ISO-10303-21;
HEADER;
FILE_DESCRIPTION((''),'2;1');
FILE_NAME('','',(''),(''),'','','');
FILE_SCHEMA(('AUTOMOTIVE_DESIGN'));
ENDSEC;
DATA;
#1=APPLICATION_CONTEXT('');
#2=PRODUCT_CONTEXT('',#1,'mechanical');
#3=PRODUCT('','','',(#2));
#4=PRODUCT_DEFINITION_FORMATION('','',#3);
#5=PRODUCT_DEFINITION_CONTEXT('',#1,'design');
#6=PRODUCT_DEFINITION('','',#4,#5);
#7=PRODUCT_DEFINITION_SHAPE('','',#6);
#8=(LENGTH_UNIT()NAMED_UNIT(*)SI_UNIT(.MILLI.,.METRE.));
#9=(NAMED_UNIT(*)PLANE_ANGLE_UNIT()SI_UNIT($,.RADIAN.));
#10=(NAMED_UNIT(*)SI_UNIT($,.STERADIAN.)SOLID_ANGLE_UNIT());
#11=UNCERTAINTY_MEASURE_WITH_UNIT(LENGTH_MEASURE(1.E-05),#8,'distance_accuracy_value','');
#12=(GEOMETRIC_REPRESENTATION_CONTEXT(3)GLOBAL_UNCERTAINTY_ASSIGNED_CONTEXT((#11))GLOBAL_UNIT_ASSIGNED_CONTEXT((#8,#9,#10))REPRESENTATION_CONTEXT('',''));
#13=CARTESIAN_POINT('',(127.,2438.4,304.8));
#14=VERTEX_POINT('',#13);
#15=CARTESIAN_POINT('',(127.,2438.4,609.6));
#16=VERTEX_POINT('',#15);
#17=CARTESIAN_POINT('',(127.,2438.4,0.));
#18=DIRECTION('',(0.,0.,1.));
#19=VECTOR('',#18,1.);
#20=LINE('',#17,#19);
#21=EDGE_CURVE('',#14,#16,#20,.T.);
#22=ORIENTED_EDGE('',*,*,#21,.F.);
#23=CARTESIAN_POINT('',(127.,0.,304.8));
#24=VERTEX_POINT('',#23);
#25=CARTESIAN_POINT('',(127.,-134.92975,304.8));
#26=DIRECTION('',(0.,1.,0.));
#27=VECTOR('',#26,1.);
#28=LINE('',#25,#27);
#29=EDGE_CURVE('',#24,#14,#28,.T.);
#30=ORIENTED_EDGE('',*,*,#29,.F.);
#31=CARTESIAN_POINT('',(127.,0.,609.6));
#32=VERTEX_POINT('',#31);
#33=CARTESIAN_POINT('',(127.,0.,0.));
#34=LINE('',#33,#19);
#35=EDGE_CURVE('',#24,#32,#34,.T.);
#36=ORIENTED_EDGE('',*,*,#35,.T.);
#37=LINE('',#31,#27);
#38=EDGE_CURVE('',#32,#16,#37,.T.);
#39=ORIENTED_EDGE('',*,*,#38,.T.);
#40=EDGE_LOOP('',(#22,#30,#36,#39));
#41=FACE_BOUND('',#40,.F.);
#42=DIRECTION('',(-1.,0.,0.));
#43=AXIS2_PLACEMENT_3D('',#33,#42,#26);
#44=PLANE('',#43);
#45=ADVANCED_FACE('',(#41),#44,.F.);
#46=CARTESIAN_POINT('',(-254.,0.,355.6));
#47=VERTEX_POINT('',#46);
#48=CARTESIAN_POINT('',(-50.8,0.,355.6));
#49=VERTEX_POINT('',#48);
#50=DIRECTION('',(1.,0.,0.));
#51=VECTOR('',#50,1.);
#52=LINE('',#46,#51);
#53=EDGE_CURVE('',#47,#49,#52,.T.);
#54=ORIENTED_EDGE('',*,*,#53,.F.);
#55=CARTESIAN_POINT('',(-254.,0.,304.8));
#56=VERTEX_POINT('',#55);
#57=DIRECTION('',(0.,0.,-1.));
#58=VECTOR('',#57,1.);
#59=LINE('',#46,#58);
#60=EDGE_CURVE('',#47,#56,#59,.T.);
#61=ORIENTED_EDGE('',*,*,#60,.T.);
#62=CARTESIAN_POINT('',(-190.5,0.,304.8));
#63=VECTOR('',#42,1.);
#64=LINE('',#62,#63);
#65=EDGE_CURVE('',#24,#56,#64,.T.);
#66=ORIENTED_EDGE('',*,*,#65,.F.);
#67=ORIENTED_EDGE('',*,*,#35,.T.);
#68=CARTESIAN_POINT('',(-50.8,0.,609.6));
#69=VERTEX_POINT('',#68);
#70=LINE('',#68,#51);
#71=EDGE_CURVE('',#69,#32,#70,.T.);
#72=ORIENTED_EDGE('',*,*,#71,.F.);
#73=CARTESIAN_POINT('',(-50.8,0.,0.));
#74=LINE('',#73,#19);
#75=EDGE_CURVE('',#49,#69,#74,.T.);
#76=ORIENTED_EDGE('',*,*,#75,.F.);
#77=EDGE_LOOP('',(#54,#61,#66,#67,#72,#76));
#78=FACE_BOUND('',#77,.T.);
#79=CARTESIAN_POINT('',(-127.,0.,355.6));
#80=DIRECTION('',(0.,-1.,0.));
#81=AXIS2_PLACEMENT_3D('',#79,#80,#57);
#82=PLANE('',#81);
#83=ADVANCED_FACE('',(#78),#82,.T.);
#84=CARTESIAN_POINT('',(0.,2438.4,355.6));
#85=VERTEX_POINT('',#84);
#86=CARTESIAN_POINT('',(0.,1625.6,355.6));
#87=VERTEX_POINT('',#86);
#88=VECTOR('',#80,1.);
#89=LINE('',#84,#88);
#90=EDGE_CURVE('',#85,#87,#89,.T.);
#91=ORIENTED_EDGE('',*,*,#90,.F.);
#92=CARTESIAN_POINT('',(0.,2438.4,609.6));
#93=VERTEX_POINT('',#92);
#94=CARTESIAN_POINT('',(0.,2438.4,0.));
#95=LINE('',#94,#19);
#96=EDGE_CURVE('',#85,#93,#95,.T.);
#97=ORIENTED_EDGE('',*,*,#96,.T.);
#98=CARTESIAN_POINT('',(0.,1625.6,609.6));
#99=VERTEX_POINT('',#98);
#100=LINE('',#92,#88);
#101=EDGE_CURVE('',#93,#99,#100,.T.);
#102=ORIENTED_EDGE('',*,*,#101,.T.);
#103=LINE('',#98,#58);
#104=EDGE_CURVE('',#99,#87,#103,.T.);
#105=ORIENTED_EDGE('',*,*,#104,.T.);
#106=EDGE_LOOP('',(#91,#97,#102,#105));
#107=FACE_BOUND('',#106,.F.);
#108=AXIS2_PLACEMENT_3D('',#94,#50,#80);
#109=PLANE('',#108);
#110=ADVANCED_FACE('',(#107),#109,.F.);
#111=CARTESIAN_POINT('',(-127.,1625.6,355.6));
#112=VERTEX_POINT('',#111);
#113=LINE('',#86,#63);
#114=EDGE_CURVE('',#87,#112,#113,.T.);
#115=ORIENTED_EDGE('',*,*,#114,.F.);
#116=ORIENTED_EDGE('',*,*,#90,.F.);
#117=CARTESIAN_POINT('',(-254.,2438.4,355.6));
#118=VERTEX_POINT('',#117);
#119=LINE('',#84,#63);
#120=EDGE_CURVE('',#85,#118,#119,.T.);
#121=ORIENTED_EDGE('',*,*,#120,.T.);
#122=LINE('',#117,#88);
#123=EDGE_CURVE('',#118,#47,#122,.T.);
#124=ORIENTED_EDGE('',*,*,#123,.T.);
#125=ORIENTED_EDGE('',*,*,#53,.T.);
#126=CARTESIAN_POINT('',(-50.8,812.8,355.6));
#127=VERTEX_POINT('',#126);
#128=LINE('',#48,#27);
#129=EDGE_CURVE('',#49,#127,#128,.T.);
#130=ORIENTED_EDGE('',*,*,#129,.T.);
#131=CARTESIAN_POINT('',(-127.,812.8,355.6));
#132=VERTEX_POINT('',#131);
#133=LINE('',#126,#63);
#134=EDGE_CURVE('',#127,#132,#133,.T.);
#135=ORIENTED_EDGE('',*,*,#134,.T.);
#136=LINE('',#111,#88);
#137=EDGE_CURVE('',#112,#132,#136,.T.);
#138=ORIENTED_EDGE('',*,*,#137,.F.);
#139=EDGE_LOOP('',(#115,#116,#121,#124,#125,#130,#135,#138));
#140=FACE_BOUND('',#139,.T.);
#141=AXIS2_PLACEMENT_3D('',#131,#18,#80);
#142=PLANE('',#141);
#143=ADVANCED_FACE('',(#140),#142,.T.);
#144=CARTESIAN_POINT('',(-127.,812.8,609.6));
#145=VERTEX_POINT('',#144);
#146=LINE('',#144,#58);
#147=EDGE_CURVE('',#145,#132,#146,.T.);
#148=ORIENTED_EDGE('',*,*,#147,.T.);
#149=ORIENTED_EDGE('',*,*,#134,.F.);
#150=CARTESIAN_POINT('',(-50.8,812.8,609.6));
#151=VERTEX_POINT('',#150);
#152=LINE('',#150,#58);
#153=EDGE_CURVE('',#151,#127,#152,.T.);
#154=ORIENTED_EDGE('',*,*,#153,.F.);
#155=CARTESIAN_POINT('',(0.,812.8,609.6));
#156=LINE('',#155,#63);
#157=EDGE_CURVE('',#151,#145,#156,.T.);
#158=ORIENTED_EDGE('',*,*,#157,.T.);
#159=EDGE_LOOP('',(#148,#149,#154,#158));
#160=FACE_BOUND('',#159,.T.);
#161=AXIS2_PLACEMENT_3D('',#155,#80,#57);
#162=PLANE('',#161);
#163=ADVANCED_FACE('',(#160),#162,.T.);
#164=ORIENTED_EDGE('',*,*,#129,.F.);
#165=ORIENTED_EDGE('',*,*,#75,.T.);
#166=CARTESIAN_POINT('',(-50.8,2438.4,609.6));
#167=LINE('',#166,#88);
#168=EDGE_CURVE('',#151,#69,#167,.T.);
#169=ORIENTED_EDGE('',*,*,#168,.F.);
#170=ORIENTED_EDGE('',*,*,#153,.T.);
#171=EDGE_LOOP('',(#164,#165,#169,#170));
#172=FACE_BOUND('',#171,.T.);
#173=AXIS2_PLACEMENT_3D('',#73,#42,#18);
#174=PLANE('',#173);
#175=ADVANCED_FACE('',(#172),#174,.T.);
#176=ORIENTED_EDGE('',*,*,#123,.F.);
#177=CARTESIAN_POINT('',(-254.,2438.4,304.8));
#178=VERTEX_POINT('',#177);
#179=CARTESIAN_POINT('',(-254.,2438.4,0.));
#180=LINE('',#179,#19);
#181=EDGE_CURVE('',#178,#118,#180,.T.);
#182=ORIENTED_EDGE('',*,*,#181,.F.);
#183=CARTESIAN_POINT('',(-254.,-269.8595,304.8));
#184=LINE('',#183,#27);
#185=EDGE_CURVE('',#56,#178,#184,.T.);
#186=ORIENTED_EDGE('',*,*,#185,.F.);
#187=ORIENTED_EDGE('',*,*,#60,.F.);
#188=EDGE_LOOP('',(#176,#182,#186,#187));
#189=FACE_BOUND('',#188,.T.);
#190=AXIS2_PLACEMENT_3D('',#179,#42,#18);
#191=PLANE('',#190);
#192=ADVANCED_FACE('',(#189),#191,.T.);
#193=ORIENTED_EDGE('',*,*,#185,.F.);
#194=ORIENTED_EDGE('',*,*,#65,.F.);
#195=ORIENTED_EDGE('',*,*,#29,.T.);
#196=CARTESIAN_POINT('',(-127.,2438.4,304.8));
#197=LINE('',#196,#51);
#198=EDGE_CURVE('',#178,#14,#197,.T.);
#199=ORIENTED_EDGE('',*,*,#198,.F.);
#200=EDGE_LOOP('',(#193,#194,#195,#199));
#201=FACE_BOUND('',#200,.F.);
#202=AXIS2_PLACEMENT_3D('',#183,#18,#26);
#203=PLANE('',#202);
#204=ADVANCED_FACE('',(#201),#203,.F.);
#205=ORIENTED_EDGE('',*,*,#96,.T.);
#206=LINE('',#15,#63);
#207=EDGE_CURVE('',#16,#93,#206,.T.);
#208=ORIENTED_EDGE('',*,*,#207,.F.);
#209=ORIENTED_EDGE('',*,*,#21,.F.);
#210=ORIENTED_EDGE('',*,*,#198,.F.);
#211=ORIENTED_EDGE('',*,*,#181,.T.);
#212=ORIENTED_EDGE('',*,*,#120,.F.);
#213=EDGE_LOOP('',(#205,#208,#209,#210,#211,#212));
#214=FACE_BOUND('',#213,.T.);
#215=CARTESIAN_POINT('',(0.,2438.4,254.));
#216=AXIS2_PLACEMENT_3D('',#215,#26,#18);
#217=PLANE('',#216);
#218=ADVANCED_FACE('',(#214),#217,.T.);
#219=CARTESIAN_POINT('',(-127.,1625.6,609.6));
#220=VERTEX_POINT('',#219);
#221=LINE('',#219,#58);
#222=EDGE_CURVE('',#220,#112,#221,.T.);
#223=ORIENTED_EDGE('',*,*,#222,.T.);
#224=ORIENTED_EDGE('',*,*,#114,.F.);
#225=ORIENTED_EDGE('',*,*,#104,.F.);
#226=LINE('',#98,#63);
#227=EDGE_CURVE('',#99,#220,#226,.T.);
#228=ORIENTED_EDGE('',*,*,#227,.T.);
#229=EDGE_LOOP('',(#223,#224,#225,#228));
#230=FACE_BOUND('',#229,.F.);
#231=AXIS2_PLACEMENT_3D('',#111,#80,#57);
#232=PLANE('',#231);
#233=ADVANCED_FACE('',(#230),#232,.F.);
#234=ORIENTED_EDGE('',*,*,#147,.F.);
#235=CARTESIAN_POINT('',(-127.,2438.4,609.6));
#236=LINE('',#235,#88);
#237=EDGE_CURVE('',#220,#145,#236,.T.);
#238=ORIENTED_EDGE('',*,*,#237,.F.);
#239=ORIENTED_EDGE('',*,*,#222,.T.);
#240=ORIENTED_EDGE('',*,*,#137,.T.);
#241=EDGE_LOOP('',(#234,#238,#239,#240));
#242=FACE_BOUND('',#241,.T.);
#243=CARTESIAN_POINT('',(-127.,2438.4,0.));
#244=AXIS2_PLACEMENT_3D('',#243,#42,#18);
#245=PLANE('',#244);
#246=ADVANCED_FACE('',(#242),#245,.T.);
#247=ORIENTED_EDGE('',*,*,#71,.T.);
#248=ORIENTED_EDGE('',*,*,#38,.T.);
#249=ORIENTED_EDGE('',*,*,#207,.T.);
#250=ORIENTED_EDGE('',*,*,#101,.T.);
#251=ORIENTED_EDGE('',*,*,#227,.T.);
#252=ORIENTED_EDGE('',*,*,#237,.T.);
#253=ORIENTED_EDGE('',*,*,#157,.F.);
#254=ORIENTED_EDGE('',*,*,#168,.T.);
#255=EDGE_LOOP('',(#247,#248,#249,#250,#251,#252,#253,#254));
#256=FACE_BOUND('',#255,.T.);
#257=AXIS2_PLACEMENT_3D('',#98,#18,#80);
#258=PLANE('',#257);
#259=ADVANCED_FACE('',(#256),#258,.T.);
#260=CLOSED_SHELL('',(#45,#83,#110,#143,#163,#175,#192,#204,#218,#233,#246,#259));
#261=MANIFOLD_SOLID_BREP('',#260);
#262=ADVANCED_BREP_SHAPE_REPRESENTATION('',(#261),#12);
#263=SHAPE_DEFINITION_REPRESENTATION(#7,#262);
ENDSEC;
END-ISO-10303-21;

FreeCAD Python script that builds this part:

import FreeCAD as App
import Part
import Sketcher

V = App.Vector
Q = App.Units.Quantity


def add_polygon(sketch, points):
    """Adds a closed chain of lines whose ends are joined by coincident constraints."""
    first, n = sketch.GeometryCount, len(points)
    for a, b in zip(points, points[1:] + points[:1]):
        sketch.addGeometry(Part.LineSegment(App.Vector(*a, 0), App.Vector(*b, 0)), False)
    for i in range(n):
        sketch.addConstraint(Sketcher.Constraint("Coincident", first + i, 2, first + (i + 1) % n, 1))

doc = App.newDocument("Part")
body = doc.addObject("PartDesign::Body", "Body")

# Sketch on XY plane
sketch1 = body.newObject("Sketcher::SketchObject", "Sketch")
sketch1.AttachmentSupport = (doc.getObject("XY_Plane"), [""])
sketch1.MapMode = "FlatFace"
add_polygon(sketch1, [(0, 2438), (0, 0), (127, 0), (127, 2438)])  # lines 0-3
sketch1.addConstraint([
    Sketcher.Constraint("Vertical", 0),
    Sketcher.Constraint("Horizontal", 1),
    Sketcher.Constraint("Vertical", 2),
    Sketcher.Constraint("Horizontal", 3),
    Sketcher.Constraint("Coincident", 0, 2, -1, 1),
    Sketcher.Constraint("DistanceX", 1, 1, 1, 2, Q("5 in")),
    Sketcher.Constraint("DistanceY", 0, 2, 0, 1, Q("96 in")),
])
pad1 = body.newObject("PartDesign::Pad", "Pad")
pad1.Profile = sketch1
pad1.Length = Q("24 in")

# Sketch on YZ plane
sketch2 = body.newObject("Sketcher::SketchObject", "Sketch001")
sketch2.AttachmentSupport = (doc.getObject("YZ_Plane"), [""])
sketch2.MapMode = "FlatFace"
add_polygon(sketch2, [(0, 610), (813, 610), (813, 0), (0, 0)])  # lines 0-3
sketch2.addConstraint([
    Sketcher.Constraint("Horizontal", 0),
    Sketcher.Constraint("Vertical", 1),
    Sketcher.Constraint("Horizontal", 2),
    Sketcher.Constraint("Vertical", 3),
    Sketcher.Constraint("Coincident", 2, 2, -1, 1),
    Sketcher.Constraint("DistanceX", 0, 1, 0, 2, Q("32 in")),
    Sketcher.Constraint("DistanceY", 1, 2, 1, 1, Q("24 in")),
])
pad2 = body.newObject("PartDesign::Pad", "Pad001")
pad2.Profile = sketch2
pad2.Length = Q("2 in")
pad2.Reversed = True

# Sketch on YZ plane
sketch3 = body.newObject("Sketcher::SketchObject", "Sketch002")
sketch3.AttachmentSupport = (doc.getObject("YZ_Plane"), [""])
sketch3.MapMode = "FlatFace"
add_polygon(sketch3, [(813, 0), (813, 610), (1626, 610), (1626, 0)])  # lines 0-3
sketch3.addConstraint([
    Sketcher.Constraint("Vertical", 0),
    Sketcher.Constraint("Horizontal", 1),
    Sketcher.Constraint("Vertical", 2),
    Sketcher.Constraint("Horizontal", 3),
    Sketcher.Constraint("PointOnObject", 2, 2, -1),
    Sketcher.Constraint("DistanceX", 1, 1, 1, 2, Q("32 in")),
    Sketcher.Constraint("DistanceX", -1, 1, 0, 2, Q("32 in")),
    Sketcher.Constraint("DistanceY", 0, 1, 0, 2, Q("24 in")),
])
pad3 = body.newObject("PartDesign::Pad", "Pad002")
pad3.Profile = sketch3
pad3.Length = Q("5 in")
pad3.Reversed = True

# Sketch on YZ plane
sketch4 = body.newObject("Sketcher::SketchObject", "Sketch003")
sketch4.AttachmentSupport = (doc.getObject("YZ_Plane"), [""])
sketch4.MapMode = "FlatFace"
sketch4.AttachmentOffset = App.Placement(V(0, 0, -2 * 25.4), App.Rotation())
add_polygon(sketch4, [(813, 356), (813, 254), (0, 254), (0, 356)])  # lines 0-3
sketch4.addConstraint([
    Sketcher.Constraint("Vertical", 0),
    Sketcher.Constraint("Horizontal", 1),
    Sketcher.Constraint("Vertical", 2),
    Sketcher.Constraint("Horizontal", 3),
    Sketcher.Constraint("PointOnObject", 1, 2, -2),
    Sketcher.Constraint("DistanceY", -1, 1, 0, 2, Q("10 in")),
    Sketcher.Constraint("DistanceX", 1, 2, 1, 1, Q("32 in")),
    Sketcher.Constraint("DistanceY", 0, 2, 0, 1, Q("4 in")),
])
pad4 = body.newObject("PartDesign::Pad", "Pad003")
pad4.Profile = sketch4
pad4.Length = Q("3 in")
pad4.Reversed = True

# Sketch on YZ plane
sketch5 = body.newObject("Sketcher::SketchObject", "Sketch004")
sketch5.AttachmentSupport = (doc.getObject("YZ_Plane"), [""])
sketch5.MapMode = "FlatFace"
sketch5.AttachmentOffset = App.Placement(V(0, 0, -5 * 25.4), App.Rotation())
add_polygon(sketch5, [(813, 356), (1626, 356), (1626, 254), (813, 254)])  # lines 0-3
sketch5.addConstraint([
    Sketcher.Constraint("Horizontal", 0),
    Sketcher.Constraint("Vertical", 1),
    Sketcher.Constraint("Horizontal", 2),
    Sketcher.Constraint("Vertical", 3),
    Sketcher.Constraint("DistanceX", 0, 1, 0, 2, Q("32 in")),
    Sketcher.Constraint("DistanceY", 1, 2, 1, 1, Q("4 in")),
    Sketcher.Constraint("DistanceX", -1, 1, 0, 2, Q("64 in")),
    Sketcher.Constraint("DistanceY", -1, 1, 0, 2, Q("14 in")),
])
pad5 = body.newObject("PartDesign::Pad", "Pad004")
pad5.Profile = sketch5
pad5.Length = Q("5 in")
pad5.Reversed = True

# Sketch on YZ plane
sketch6 = body.newObject("Sketcher::SketchObject", "Sketch005")
sketch6.AttachmentSupport = (doc.getObject("YZ_Plane"), [""])
sketch6.MapMode = "FlatFace"
add_polygon(sketch6, [(1626, 254), (1626, 356), (2438, 356), (2438, 254)])  # lines 0-3
sketch6.addConstraint([
    Sketcher.Constraint("Vertical", 0),
    Sketcher.Constraint("Horizontal", 1),
    Sketcher.Constraint("Vertical", 2),
    Sketcher.Constraint("Horizontal", 3),
    Sketcher.Constraint("DistanceX", 1, 1, 1, 2, Q("32 in")),
    Sketcher.Constraint("DistanceY", 0, 1, 0, 2, Q("4 in")),
    Sketcher.Constraint("DistanceX", -1, 1, 0, 2, Q("64 in")),
    Sketcher.Constraint("DistanceY", -1, 1, 0, 2, Q("14 in")),
])
pad6 = body.newObject("PartDesign::Pad", "Pad005")
pad6.Profile = sketch6
pad6.Length = Q("10 in")
pad6.Reversed = True

# Sketch on YZ plane
sketch7 = body.newObject("Sketcher::SketchObject", "Sketch006")
sketch7.AttachmentSupport = (doc.getObject("YZ_Plane"), [""])
sketch7.MapMode = "FlatFace"
sketch7.AttachmentOffset = App.Placement(V(0, 0, -5 * 25.4), App.Rotation())
add_polygon(sketch7, [(813, 356), (813, 254), (0, 254), (0, 356)])  # lines 0-3
sketch7.addConstraint([
    Sketcher.Constraint("Vertical", 0),
    Sketcher.Constraint("Horizontal", 1),
    Sketcher.Constraint("Vertical", 2),
    Sketcher.Constraint("Horizontal", 3),
    Sketcher.Constraint("PointOnObject", 1, 2, -2),
    Sketcher.Constraint("DistanceX", 1, 2, 1, 1, Q("32 in")),
    Sketcher.Constraint("DistanceY", 0, 2, 0, 1, Q("4 in")),
    Sketcher.Constraint("DistanceY", -1, 1, 0, 2, Q("10 in")),
])
pad7 = body.newObject("PartDesign::Pad", "Pad006")
pad7.Profile = sketch7
pad7.Length = Q("5 in")
pad7.Reversed = True

# Sketch on YZ plane
sketch8 = body.newObject("Sketcher::SketchObject", "Sketch007")
sketch8.AttachmentSupport = (doc.getObject("YZ_Plane"), [""])
sketch8.MapMode = "FlatFace"
sketch8.AttachmentOffset = App.Placement(V(0, 0, -10 * 25.4), App.Rotation())
add_polygon(sketch8, [(2641, -286), (-270, -286), (-270, 305), (2641, 305)])  # lines 0-3
sketch8.addConstraint([
    Sketcher.Constraint("Horizontal", 0),
    Sketcher.Constraint("Vertical", 1),
    Sketcher.Constraint("Horizontal", 2),
    Sketcher.Constraint("Vertical", 3),
    Sketcher.Constraint("DistanceY", -1, 1, 1, 2, Q("12 in")),
    Sketcher.Constraint("DistanceX", 0, 2, 0, 1, Q("2910.7774 mm")),
    Sketcher.Constraint("DistanceY", 1, 1, 1, 2, Q("590.3024 mm")),
    Sketcher.Constraint("DistanceX", 0, 2, -1, 1, Q("10.6244 in")),
])
pocket1 = body.newObject("PartDesign::Pocket", "Pocket")
pocket1.Profile = sketch8
pocket1.Length = Q("34.0625 in")
pocket1.Reversed = True

doc.recompute()
